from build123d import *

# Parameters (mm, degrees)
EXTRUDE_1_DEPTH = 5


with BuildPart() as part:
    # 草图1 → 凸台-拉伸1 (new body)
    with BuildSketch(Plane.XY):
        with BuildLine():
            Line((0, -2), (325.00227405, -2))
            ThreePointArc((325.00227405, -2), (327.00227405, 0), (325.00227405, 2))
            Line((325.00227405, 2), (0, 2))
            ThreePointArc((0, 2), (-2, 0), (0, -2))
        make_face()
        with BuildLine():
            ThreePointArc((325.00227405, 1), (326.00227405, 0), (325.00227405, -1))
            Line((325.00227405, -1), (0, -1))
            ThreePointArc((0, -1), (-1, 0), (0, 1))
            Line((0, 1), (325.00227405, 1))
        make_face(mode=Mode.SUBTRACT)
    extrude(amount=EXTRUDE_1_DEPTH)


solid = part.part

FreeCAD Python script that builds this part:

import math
import FreeCAD as App
import Part
import Sketcher
Q = App.Units.Quantity

doc = App.newDocument("Part")
body = doc.addObject("PartDesign::Body", "Body")

sketch1 = doc.addObject("Sketcher::SketchObject", "Sketch")
body.addObject(sketch1)
sketch1.AttachmentSupport = (doc.XY_Plane, [""])
sketch1.MapMode = "FlatFace"
sketch1.addGeometry([
    Part.LineSegment(App.Vector(0, -2, 0), App.Vector(325, -2, 0)),
    Part.ArcOfCircle(Part.Circle(App.Vector(325, 0, 0), App.Vector(0, 0, 1), 2), math.radians(-90), math.radians(90)),
    Part.LineSegment(App.Vector(325, 2, 0), App.Vector(0, 2, 0)),
    Part.ArcOfCircle(Part.Circle(App.Vector(0, 0, 0), App.Vector(0, 0, 1), 2), math.radians(90), math.radians(270)),
    Part.LineSegment(App.Vector(0, 1, 0), App.Vector(325, 1, 0)),
    Part.ArcOfCircle(Part.Circle(App.Vector(325, 0, 0), App.Vector(0, 0, 1), 1), math.radians(-90), math.radians(90)),
    Part.LineSegment(App.Vector(325, -1, 0), App.Vector(0, -1, 0)),
    Part.ArcOfCircle(Part.Circle(App.Vector(0, 0, 0), App.Vector(0, 0, 1), 1), math.radians(90), math.radians(270)),
], False)
sketch1.addConstraint([
    Sketcher.Constraint("Tangent", 0, 2, 1, 1),
    Sketcher.Constraint("Tangent", 1, 2, 2, 1),
    Sketcher.Constraint("Tangent", 2, 2, 3, 1),
    Sketcher.Constraint("Tangent", 3, 2, 0, 1),
    Sketcher.Constraint("Tangent", 4, 2, 5, 2),
    Sketcher.Constraint("Tangent", 5, 1, 6, 1),
    Sketcher.Constraint("Tangent", 6, 2, 7, 2),
    Sketcher.Constraint("Tangent", 7, 1, 4, 1),
    Sketcher.Constraint("Horizontal", 0),
    Sketcher.Constraint("Horizontal", 2),
    Sketcher.Constraint("Horizontal", 4),
    Sketcher.Constraint("Horizontal", 6),
    Sketcher.Constraint("Coincident", 3, 3, -1, 1),
    Sketcher.Constraint("Coincident", 7, 3, -1, 1),
    Sketcher.Constraint("Vertical", 5, 3, 0, 2),
    Sketcher.Constraint("Radius", 1, Q("2 mm")),
    Sketcher.Constraint("Radius", 5, Q("1 mm")),
    Sketcher.Constraint("DistanceX", 0, 1, 0, 2, Q("325.002274 mm")),
])
pad1 = doc.addObject("PartDesign::Pad", "Pad")
body.addObject(pad1)
pad1.Profile = sketch1
pad1.Length = 5

doc.recompute()
